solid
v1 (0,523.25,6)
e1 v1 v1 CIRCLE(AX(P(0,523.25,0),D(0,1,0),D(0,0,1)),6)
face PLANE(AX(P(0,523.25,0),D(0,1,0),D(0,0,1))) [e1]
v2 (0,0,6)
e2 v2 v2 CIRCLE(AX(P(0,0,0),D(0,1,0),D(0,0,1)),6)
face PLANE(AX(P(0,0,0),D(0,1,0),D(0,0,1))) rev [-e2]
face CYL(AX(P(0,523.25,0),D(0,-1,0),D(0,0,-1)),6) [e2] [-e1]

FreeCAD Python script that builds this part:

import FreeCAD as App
import Part
import Sketcher

V = App.Vector
Q = App.Units.Quantity

doc = App.newDocument("Part")
params = doc.addObject("Spreadsheet::Sheet", "Params")
for row, (alias, value) in enumerate([
    ("sketch1_diameter", "12 mm"),
    ("pad1_length", "523.25 mm"),
], start=1):
    params.set(f"A{row}", alias)
    params.set(f"B{row}", "=" + value)
    params.setAlias(f"B{row}", alias)

body = doc.addObject("PartDesign::Body", "Body")

# Sketch on XZ plane
sketch1 = body.newObject("Sketcher::SketchObject", "Sketch")
sketch1.AttachmentSupport = (doc.getObject("XZ_Plane"), [""])
sketch1.MapMode = "FlatFace"
sketch1.addGeometry(Part.Circle(V(0, 0, 0), V(0, 0, 1), 6), False)
sketch1.addConstraint(Sketcher.Constraint("Coincident", 0, 3, -1, 1))
sketch1.addConstraint(Sketcher.Constraint("Diameter", 0, Q("12 mm")))
sketch1.setExpression("Constraints[1]", "Params.sketch1_diameter")
pad1 = body.newObject("PartDesign::Pad", "Pad")
pad1.Profile = sketch1
pad1.setExpression("Length", "Params.pad1_length")
pad1.Reversed = True

doc.recompute()
